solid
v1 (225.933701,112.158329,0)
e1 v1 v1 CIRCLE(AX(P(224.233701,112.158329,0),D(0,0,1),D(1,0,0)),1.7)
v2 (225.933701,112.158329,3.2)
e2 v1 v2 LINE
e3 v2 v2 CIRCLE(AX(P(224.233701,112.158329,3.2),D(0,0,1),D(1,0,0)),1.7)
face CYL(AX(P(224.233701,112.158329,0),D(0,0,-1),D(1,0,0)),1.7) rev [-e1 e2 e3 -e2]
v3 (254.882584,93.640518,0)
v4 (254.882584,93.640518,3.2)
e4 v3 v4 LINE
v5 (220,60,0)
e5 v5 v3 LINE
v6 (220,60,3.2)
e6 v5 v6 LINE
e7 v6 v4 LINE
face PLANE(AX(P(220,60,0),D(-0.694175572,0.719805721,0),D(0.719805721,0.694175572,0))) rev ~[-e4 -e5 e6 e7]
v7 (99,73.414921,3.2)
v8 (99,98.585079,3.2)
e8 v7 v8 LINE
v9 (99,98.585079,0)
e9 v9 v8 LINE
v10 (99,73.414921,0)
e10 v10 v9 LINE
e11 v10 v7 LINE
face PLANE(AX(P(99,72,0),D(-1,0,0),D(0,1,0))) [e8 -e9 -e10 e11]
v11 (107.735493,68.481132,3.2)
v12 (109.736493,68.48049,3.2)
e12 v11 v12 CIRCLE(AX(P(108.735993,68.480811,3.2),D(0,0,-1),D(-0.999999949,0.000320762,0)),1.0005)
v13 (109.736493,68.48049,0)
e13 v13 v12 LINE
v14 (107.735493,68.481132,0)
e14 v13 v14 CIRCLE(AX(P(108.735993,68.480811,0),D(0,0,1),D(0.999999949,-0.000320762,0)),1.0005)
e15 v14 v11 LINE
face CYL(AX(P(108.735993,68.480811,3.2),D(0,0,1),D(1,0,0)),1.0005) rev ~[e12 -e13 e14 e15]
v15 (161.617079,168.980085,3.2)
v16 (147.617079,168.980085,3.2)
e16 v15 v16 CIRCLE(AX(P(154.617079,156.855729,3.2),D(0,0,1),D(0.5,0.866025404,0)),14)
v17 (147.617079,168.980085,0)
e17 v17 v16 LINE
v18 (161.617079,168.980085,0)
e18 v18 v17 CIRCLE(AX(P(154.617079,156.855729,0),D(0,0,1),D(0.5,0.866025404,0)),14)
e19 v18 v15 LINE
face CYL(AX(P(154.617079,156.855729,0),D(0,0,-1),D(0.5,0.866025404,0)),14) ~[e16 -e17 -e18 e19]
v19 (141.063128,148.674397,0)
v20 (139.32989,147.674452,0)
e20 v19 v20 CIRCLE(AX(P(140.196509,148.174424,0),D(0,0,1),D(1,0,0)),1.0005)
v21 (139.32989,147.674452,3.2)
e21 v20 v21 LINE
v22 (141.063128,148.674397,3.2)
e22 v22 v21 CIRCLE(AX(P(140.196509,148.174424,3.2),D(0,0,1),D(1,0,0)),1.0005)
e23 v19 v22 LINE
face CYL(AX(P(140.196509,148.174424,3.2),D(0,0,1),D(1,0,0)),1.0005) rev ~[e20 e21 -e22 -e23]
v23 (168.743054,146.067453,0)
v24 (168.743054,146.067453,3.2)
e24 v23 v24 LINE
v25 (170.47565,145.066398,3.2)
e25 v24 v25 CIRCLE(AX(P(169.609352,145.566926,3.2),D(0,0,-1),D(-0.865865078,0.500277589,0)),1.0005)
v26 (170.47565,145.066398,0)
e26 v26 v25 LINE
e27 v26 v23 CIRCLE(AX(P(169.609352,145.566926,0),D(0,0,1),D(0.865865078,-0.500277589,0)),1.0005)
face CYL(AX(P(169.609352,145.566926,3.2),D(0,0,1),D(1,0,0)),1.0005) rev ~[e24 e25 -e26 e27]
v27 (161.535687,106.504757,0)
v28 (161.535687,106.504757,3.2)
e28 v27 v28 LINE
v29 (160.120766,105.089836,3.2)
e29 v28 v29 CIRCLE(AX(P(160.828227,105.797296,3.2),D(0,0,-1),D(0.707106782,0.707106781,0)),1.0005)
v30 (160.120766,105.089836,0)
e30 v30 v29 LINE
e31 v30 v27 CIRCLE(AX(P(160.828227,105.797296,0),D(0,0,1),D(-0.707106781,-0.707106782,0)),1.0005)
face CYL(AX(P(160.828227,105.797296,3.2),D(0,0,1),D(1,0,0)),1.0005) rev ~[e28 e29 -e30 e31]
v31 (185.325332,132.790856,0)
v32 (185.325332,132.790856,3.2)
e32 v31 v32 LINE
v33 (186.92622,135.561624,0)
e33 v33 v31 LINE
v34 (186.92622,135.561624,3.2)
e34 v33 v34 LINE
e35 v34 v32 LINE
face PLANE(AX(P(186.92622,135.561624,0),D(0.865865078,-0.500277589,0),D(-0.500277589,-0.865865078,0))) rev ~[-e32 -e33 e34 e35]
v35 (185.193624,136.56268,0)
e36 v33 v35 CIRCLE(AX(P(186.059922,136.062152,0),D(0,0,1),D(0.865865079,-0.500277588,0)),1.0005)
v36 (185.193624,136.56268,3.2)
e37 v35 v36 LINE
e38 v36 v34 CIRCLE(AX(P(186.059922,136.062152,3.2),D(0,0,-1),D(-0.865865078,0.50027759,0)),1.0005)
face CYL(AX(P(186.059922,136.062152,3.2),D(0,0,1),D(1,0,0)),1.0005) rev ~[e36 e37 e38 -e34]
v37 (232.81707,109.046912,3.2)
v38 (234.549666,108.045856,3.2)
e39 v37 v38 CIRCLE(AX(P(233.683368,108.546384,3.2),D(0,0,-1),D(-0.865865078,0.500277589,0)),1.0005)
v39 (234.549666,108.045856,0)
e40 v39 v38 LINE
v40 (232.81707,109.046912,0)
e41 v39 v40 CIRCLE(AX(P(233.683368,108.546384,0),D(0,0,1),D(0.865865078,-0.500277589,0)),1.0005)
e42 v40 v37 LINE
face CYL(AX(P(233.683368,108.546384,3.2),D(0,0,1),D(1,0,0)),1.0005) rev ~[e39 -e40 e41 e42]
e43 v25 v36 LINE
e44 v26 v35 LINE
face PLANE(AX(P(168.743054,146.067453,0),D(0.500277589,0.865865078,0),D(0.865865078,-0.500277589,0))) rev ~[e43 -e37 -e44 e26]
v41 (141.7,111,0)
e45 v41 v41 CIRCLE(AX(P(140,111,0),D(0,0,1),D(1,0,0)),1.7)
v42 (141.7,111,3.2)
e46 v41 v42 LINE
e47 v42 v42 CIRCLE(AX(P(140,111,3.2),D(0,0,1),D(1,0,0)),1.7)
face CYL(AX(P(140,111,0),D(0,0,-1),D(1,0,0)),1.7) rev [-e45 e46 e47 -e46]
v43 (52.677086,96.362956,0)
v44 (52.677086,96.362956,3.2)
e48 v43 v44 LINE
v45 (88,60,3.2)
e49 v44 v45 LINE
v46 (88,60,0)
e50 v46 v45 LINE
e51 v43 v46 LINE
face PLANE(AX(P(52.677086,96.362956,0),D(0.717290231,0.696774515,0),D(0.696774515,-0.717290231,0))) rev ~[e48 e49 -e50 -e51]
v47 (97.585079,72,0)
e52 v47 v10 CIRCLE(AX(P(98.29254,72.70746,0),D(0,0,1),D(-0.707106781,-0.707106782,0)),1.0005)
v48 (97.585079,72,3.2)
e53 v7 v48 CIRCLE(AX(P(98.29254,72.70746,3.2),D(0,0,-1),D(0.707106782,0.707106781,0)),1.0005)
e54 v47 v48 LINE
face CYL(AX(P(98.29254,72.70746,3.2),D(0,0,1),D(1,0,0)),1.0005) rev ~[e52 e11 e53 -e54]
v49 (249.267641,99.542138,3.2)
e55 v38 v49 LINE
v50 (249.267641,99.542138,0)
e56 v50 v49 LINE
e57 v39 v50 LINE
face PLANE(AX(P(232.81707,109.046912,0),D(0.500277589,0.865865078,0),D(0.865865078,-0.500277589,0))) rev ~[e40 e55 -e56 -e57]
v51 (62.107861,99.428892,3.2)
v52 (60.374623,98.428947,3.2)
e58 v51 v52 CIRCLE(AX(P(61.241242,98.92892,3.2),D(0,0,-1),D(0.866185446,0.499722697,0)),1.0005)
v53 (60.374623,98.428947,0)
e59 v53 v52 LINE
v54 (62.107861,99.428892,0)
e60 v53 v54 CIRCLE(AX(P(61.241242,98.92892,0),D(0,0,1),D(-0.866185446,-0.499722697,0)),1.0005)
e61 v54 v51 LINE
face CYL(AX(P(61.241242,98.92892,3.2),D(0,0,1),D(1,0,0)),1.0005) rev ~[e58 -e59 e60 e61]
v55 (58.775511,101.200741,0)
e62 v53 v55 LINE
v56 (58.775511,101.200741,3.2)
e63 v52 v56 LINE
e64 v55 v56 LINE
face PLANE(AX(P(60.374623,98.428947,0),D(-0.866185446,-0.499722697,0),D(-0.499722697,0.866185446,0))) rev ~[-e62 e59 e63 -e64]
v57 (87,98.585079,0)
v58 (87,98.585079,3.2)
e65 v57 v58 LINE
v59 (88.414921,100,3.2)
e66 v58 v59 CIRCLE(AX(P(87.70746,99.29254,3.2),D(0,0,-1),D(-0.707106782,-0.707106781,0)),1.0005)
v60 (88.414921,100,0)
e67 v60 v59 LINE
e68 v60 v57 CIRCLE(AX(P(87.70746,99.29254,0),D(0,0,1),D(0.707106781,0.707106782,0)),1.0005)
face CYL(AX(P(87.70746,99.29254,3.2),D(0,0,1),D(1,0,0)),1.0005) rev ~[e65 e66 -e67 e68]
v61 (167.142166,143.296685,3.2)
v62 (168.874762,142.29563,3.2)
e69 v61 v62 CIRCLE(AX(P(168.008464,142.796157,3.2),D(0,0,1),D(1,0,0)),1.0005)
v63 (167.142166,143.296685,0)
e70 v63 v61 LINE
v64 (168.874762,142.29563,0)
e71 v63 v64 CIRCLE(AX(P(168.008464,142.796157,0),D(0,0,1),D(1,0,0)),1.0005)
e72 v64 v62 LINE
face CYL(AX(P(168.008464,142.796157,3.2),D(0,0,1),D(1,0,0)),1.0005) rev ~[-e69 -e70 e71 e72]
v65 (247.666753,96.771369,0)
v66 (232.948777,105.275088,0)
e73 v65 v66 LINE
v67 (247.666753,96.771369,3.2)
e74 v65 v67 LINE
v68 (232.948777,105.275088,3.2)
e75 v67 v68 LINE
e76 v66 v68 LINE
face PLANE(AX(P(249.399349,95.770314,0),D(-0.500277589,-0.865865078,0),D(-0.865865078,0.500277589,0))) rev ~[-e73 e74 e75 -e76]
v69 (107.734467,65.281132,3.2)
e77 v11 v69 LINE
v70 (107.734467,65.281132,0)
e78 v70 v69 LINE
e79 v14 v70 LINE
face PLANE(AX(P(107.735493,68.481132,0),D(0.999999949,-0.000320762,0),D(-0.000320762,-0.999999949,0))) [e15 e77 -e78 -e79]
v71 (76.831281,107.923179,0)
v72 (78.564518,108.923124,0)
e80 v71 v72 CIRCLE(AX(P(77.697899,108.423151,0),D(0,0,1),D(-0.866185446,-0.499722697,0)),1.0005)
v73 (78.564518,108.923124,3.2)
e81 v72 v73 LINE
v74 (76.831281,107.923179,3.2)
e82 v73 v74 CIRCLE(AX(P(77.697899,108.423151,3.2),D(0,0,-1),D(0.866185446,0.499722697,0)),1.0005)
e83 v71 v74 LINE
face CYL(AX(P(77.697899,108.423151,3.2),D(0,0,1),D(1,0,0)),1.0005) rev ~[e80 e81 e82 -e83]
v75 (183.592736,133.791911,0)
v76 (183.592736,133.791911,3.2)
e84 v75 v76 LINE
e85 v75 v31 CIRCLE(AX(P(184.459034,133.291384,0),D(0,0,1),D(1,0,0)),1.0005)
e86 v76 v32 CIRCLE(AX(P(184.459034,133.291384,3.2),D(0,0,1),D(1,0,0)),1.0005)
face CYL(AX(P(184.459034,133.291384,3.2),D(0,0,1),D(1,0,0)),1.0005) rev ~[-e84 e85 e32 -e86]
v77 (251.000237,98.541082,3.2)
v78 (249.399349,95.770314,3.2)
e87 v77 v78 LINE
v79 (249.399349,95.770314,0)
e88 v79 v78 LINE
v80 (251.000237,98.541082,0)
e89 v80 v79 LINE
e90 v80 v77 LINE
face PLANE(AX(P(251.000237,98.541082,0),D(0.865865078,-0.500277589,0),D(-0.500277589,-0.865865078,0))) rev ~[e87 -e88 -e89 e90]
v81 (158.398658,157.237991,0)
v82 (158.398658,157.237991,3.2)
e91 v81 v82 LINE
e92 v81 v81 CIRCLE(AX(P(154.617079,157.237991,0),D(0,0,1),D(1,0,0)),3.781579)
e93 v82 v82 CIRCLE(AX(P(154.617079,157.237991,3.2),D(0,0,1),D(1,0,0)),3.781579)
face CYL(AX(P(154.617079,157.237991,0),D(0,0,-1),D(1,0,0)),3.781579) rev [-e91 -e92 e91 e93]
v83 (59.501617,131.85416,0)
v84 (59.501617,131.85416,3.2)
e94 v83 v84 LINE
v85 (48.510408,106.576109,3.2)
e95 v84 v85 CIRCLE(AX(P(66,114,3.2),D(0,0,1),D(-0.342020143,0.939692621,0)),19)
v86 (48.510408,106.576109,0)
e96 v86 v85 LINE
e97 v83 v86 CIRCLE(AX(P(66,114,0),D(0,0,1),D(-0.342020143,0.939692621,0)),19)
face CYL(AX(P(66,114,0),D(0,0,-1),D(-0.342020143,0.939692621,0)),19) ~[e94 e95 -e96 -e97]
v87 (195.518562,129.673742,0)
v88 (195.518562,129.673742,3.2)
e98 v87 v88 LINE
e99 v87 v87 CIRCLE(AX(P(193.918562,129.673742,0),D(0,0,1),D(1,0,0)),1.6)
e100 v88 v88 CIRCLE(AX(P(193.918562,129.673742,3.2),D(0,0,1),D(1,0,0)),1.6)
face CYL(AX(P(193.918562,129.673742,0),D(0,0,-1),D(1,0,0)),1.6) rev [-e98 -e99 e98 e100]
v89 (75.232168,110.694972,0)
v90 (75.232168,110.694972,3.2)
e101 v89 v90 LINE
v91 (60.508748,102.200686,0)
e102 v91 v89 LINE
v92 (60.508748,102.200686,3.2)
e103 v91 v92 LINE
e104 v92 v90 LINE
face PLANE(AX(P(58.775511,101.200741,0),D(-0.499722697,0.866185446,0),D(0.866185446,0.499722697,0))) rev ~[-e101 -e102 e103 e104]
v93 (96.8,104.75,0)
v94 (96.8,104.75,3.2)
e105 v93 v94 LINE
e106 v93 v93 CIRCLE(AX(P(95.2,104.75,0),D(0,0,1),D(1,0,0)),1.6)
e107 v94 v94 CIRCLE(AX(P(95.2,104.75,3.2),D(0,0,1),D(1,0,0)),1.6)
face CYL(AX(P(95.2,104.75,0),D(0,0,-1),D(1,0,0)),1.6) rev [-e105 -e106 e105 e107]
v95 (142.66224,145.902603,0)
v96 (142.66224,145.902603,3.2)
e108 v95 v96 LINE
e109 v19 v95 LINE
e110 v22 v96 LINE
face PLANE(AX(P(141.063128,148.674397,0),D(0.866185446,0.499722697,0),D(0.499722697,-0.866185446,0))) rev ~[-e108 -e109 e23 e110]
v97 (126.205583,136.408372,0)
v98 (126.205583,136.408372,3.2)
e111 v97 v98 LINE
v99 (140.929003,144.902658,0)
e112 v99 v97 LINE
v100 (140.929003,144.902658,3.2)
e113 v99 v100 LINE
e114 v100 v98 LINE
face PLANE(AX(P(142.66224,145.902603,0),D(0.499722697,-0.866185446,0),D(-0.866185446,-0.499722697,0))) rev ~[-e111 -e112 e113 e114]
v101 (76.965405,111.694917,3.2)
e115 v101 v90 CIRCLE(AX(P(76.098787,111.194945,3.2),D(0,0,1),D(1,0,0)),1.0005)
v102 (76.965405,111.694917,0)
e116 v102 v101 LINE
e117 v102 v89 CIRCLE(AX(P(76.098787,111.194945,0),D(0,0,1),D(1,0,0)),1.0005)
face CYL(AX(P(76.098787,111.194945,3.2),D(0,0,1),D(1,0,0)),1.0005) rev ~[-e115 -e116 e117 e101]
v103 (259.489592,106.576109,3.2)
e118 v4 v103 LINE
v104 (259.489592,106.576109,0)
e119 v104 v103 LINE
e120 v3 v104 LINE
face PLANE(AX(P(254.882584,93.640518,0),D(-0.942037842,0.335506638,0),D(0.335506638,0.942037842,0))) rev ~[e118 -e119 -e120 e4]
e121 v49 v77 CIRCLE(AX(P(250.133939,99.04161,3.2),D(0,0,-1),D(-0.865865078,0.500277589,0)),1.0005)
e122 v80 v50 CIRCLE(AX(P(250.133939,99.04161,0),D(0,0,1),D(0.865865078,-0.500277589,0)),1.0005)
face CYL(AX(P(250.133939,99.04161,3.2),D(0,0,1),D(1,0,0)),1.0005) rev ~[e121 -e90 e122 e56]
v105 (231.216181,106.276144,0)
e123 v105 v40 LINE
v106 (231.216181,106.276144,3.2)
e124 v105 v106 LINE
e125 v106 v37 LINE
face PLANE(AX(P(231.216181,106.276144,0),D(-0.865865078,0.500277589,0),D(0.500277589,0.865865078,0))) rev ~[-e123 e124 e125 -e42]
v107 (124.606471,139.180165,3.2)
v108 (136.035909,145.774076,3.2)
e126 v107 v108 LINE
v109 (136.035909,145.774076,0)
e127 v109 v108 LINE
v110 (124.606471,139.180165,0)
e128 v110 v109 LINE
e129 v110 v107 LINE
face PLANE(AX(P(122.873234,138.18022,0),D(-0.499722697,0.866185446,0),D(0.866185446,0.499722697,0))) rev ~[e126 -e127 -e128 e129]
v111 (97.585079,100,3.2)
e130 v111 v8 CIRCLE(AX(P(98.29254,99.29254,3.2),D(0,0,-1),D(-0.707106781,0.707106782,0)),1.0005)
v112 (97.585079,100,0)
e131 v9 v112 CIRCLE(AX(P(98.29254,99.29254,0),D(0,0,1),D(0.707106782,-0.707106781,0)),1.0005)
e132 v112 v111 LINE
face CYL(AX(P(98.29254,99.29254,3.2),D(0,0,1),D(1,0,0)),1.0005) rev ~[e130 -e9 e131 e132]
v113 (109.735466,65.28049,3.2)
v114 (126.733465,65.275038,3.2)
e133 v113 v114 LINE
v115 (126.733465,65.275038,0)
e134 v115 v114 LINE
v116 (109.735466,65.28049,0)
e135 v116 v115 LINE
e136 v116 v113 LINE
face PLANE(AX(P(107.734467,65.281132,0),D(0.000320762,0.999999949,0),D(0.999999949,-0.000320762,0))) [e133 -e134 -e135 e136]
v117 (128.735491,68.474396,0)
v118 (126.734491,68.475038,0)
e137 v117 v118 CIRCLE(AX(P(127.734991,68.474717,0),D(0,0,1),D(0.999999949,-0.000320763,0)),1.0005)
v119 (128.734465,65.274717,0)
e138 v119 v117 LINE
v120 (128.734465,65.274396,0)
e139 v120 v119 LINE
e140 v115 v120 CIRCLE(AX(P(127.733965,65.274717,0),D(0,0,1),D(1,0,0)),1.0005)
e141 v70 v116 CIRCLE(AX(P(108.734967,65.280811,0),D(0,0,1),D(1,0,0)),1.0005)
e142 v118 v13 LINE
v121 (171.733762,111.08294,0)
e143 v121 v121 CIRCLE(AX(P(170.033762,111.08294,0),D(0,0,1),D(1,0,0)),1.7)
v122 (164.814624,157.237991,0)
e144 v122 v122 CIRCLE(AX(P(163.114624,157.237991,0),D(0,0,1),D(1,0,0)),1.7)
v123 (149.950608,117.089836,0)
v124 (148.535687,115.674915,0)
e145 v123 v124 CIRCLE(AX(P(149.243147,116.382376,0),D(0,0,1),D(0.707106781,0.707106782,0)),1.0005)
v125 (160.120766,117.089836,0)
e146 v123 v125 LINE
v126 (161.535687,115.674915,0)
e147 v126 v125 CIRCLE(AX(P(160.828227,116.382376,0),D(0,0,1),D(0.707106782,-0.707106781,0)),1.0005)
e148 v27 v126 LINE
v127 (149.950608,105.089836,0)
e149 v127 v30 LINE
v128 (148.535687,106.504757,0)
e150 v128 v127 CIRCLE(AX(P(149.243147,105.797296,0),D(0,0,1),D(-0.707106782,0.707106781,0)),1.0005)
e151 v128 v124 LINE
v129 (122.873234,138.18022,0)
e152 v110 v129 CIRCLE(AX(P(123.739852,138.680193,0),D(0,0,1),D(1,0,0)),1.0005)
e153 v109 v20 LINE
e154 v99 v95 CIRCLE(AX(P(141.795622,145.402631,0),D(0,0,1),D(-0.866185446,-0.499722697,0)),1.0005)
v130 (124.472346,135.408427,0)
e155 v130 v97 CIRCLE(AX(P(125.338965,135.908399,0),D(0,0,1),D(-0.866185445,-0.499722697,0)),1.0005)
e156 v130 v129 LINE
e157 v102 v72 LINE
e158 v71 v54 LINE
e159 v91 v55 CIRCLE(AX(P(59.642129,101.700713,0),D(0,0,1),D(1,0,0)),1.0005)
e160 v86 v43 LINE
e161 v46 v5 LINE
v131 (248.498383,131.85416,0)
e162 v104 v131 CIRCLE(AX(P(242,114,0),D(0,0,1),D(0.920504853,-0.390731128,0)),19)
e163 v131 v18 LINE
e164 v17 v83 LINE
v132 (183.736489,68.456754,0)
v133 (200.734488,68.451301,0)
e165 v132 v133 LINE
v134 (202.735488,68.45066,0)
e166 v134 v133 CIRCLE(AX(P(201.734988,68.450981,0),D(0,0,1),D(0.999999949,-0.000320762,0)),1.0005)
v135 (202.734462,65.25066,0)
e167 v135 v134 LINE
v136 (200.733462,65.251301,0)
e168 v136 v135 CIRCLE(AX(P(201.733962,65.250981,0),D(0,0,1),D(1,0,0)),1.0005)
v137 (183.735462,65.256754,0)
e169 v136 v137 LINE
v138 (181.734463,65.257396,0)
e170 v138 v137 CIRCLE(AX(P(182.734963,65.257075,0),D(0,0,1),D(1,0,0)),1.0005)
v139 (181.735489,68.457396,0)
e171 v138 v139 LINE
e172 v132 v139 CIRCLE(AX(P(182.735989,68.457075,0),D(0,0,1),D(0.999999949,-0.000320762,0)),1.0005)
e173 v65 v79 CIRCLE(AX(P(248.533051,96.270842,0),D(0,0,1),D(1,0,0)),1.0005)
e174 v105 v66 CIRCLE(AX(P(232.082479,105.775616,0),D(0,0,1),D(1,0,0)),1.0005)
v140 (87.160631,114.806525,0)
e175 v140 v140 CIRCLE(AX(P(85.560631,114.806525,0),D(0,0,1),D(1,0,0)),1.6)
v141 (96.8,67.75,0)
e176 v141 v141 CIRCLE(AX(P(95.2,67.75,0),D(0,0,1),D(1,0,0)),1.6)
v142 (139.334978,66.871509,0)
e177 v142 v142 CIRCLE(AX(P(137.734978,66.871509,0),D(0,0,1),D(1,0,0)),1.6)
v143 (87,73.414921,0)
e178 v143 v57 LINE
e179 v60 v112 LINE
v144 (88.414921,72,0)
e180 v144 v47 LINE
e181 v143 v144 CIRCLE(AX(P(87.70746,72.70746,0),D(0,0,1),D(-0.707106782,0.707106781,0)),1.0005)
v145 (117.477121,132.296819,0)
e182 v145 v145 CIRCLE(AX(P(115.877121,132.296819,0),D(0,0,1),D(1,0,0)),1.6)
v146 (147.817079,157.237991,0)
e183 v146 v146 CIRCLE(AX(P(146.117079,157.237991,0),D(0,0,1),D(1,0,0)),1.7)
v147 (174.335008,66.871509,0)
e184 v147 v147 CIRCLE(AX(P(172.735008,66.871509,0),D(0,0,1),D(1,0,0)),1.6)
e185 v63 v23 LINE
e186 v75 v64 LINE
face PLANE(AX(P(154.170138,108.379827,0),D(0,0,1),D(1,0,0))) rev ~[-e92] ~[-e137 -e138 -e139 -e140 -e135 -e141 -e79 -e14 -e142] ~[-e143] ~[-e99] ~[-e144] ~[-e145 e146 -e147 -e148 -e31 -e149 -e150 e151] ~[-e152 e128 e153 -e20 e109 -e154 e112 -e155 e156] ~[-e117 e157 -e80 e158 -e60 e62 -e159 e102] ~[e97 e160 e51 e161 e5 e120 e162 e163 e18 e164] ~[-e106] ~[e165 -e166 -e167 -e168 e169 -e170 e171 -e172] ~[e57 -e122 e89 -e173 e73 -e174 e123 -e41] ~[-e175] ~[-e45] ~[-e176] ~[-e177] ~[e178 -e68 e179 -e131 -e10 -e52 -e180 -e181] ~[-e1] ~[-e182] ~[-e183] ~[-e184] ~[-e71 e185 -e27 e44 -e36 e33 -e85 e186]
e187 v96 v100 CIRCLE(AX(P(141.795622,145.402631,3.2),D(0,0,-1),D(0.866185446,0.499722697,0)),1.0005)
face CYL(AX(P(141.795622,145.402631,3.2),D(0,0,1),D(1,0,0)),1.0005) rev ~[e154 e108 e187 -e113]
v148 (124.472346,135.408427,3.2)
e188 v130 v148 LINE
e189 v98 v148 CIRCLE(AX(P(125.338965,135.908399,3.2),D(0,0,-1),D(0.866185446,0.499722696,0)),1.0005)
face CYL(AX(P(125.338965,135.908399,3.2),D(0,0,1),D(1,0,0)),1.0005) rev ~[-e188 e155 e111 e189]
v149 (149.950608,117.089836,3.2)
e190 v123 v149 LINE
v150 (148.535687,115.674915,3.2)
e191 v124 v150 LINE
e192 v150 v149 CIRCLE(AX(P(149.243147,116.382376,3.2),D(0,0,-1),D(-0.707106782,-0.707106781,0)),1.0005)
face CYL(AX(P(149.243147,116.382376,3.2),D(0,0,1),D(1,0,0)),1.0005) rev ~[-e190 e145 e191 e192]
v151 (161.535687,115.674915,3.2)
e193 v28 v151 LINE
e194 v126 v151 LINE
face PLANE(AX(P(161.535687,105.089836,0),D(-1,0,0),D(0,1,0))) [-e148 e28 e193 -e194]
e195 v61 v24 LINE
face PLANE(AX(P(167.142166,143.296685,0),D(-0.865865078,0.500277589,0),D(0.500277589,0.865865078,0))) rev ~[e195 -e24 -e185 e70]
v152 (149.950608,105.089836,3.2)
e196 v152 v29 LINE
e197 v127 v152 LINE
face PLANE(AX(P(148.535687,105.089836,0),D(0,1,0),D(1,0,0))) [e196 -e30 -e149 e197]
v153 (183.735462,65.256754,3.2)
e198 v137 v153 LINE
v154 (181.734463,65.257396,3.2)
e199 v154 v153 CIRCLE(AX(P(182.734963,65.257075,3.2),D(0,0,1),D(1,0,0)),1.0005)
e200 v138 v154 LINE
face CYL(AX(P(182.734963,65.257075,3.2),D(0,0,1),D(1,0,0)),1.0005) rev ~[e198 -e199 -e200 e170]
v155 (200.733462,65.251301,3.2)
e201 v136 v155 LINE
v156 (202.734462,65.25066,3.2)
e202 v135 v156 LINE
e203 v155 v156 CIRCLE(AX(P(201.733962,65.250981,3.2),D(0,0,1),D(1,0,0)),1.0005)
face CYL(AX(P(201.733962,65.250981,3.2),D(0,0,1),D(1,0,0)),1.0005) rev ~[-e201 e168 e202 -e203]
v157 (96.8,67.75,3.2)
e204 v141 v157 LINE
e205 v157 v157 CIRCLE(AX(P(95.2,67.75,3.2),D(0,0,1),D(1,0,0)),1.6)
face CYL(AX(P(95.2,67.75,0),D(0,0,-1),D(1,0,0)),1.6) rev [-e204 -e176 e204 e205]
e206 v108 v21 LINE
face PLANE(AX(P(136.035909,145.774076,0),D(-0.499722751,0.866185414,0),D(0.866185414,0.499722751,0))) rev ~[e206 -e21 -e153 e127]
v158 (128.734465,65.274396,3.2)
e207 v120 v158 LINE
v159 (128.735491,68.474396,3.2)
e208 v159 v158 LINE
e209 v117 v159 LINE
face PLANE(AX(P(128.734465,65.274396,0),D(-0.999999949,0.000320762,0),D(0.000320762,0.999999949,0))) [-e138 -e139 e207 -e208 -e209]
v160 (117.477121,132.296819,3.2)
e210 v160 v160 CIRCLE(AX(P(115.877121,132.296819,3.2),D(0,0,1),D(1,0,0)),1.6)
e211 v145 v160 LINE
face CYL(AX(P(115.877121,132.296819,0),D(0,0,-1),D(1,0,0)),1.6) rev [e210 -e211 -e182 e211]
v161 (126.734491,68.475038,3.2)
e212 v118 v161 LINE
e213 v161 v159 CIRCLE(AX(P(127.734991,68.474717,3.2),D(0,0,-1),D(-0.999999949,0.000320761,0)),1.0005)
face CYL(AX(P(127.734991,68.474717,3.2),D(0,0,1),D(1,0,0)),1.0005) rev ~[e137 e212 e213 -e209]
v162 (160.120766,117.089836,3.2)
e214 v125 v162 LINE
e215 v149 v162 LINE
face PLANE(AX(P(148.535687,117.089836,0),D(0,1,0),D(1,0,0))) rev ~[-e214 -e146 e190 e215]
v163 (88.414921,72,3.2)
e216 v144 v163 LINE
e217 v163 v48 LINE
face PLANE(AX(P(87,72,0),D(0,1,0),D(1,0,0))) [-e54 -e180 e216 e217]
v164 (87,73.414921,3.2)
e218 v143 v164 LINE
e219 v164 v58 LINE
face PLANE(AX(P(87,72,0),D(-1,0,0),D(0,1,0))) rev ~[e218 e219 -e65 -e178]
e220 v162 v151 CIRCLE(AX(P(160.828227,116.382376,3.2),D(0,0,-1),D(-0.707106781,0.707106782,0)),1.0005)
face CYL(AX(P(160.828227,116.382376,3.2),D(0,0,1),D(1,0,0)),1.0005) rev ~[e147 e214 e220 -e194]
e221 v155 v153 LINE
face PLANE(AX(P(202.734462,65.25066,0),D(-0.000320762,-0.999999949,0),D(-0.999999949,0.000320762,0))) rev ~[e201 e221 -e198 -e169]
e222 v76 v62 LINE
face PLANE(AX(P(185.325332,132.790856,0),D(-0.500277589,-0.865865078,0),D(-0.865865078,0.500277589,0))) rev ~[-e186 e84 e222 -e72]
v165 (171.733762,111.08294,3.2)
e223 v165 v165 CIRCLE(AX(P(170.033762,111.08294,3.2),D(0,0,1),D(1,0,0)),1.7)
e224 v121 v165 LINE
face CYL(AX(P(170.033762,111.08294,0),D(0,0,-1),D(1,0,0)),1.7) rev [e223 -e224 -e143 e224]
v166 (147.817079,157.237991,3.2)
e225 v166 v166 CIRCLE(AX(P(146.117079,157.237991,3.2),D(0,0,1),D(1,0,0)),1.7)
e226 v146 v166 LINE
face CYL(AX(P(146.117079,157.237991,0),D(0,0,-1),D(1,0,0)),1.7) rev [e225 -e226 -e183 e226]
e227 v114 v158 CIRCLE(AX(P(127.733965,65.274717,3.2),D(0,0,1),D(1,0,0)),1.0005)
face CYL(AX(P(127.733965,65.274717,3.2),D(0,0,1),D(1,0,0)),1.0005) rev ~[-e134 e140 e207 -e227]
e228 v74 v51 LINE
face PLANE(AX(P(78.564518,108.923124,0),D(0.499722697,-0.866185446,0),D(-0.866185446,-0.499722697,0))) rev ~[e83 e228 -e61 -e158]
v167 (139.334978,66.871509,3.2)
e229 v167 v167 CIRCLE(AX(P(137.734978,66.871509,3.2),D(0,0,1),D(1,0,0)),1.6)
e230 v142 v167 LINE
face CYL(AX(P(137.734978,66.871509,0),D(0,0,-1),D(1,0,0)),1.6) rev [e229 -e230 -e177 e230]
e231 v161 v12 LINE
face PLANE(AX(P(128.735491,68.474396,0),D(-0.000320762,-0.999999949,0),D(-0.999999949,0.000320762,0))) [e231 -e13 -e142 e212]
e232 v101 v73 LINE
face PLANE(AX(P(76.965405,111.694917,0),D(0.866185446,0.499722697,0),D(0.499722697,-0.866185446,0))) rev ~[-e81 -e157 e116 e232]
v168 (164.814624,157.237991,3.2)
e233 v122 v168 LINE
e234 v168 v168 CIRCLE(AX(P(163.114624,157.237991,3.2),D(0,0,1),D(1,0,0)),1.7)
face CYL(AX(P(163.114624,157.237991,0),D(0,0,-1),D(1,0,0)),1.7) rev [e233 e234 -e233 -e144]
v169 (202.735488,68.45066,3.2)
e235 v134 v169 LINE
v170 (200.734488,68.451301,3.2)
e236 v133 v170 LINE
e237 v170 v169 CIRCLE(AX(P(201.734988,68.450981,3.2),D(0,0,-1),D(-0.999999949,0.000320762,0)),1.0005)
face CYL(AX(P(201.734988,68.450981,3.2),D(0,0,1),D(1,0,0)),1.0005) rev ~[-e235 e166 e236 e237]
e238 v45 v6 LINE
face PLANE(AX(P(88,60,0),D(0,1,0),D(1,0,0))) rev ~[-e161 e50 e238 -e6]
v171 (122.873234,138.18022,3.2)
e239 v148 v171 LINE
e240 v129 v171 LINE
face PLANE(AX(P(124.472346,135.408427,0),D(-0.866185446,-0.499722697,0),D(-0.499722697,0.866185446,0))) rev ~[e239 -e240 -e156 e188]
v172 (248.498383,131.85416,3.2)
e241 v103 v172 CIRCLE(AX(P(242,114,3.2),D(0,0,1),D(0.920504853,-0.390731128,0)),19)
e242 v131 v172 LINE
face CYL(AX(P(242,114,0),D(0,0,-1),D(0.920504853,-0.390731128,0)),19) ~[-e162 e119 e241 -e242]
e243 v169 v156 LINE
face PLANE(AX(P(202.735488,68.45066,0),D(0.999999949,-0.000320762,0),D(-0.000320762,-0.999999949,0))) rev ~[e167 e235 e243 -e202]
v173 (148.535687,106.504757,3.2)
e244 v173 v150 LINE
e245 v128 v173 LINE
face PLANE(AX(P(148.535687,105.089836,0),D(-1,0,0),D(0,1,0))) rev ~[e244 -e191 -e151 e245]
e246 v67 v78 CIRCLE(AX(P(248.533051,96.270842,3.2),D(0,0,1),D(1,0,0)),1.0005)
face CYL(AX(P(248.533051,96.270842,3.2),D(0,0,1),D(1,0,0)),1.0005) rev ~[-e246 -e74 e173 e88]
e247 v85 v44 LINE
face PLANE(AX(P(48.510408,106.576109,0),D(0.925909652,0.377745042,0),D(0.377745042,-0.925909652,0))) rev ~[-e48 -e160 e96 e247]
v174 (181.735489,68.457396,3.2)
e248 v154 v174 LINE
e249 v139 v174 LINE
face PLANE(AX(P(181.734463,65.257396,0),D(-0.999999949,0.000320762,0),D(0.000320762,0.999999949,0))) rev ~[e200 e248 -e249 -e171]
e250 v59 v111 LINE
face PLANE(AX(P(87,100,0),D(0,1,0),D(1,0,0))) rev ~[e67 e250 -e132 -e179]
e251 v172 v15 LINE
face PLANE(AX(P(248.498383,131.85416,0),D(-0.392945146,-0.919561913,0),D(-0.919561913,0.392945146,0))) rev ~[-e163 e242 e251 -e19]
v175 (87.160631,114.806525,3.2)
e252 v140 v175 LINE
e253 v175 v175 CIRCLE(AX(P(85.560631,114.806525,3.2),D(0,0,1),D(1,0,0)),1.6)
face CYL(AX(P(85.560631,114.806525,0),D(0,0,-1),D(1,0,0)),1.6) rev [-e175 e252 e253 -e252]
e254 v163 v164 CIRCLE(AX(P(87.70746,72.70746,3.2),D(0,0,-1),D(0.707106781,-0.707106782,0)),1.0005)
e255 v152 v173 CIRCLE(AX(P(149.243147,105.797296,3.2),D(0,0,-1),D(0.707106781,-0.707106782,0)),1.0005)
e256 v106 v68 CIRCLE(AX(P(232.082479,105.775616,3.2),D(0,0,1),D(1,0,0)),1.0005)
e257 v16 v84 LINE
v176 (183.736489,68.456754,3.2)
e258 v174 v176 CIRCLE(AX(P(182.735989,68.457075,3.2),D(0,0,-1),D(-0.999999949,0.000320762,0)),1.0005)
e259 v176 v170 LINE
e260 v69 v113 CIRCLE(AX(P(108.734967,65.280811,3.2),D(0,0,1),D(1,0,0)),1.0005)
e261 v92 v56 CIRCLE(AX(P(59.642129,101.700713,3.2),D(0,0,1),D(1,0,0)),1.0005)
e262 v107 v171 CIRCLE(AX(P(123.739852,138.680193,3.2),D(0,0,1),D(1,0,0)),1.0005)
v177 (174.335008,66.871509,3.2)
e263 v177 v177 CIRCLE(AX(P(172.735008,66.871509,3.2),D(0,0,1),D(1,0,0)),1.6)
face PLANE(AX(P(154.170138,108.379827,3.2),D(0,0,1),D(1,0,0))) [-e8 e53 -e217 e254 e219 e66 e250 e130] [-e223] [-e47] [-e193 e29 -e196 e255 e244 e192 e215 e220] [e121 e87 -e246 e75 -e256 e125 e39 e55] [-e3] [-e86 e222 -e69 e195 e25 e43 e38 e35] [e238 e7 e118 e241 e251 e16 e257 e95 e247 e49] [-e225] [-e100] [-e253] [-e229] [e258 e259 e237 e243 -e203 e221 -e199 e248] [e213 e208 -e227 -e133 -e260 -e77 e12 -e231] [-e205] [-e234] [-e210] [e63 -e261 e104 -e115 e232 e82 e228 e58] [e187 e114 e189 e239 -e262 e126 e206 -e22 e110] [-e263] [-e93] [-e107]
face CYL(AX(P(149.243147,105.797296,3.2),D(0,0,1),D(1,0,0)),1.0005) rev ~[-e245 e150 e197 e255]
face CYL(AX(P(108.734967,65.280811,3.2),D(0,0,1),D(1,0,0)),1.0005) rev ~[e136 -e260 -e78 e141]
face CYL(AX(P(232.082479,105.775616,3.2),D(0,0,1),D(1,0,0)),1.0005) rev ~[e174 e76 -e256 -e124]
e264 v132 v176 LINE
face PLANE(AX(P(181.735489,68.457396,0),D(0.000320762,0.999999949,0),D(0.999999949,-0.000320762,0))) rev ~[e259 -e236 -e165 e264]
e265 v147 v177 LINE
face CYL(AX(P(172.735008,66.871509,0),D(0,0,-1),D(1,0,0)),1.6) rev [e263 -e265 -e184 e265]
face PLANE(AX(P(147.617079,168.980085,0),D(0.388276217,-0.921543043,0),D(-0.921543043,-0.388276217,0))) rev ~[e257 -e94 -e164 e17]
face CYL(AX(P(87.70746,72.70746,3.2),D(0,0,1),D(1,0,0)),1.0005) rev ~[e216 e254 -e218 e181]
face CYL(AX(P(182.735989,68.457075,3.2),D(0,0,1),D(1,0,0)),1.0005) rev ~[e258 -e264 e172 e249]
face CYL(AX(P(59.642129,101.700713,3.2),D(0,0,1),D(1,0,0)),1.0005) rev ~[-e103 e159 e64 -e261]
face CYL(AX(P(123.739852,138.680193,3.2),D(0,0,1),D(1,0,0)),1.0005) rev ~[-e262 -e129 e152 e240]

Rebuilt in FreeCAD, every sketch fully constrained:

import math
import FreeCAD as App
import Part
import Sketcher

V = App.Vector


def add_polygon(sketch, points):
    """Adds a closed chain of lines whose ends are joined by coincident constraints."""
    first, n = sketch.GeometryCount, len(points)
    for a, b in zip(points, points[1:] + points[:1]):
        sketch.addGeometry(Part.LineSegment(App.Vector(*a, 0), App.Vector(*b, 0)), False)
    for i in range(n):
        sketch.addConstraint(Sketcher.Constraint("Coincident", first + i, 2, first + (i + 1) % n, 1))

doc = App.newDocument("Part")
params = doc.addObject("Spreadsheet::Sheet", "Params")
for row, (alias, value) in enumerate([
    ("sketch1_radius", "19 mm"),
    ("sketch1_radius2", "14 mm"),
    ("sketch1_diameter", "3.2 mm"),
    ("sketch1_diameter2", "3.4 mm"),
    ("sketch1_width", "132 mm"),
    ("pad1_length", "3.2 mm"),
], start=1):
    params.set(f"A{row}", alias)
    params.set(f"B{row}", "=" + value)
    params.setAlias(f"B{row}", alias)

body = doc.addObject("PartDesign::Body", "Body")

# Sketch on XY plane
sketch1 = body.newObject("Sketcher::SketchObject", "Sketch")
sketch1.AttachmentSupport = (doc.getObject("XY_Plane"), [""])
sketch1.MapMode = "FlatFace"
sketch1.addGeometry(Part.LineSegment(V(88, 60, 0), V(220, 60, 0)), False)  # 0
sketch1.addGeometry(Part.LineSegment(V(220, 60, 0), V(254.9, 93.6, 0)), False)  # 1
sketch1.addGeometry(Part.LineSegment(V(254.9, 93.6, 0), V(259.5, 106.6, 0)), False)  # 2
sketch1.addGeometry(Part.ArcOfCircle(Part.Circle(V(242, 114, 0), V(0, 0, 1), 19), math.radians(-23), math.radians(70)), False)  # 3
sketch1.addGeometry(Part.LineSegment(V(248.5, 131.9, 0), V(161.6, 169, 0)), False)  # 4
sketch1.addGeometry(Part.ArcOfCircle(Part.Circle(V(154.6, 156.9, 0), V(0, 0, 1), 14), math.radians(60), math.radians(120)), False)  # 5
sketch1.addGeometry(Part.LineSegment(V(147.6, 169, 0), V(59.5, 131.9, 0)), False)  # 6
sketch1.addGeometry(Part.ArcOfCircle(Part.Circle(V(66, 114, 0), V(0, 0, 1), 19), math.radians(110), math.radians(203)), False)  # 7
sketch1.addGeometry(Part.LineSegment(V(48.5, 106.6, 0), V(52.7, 96.4, 0)), False)  # 8
sketch1.addGeometry(Part.LineSegment(V(52.7, 96.4, 0), V(88, 60, 0)), False)  # 9
sketch1.addGeometry(Part.Circle(V(95.2, 67.8, 0), V(0, 0, 1), 1.6), False)  # 10
add_polygon(sketch1, [(99, 72), (87, 72), (87, 100), (99, 100)])  # lines 11-14
add_polygon(sketch1, [(128.7, 68.5), (128.7, 65.3), (107.7, 65.3), (107.7, 68.5)])  # lines 15-18
sketch1.addGeometry(Part.Circle(V(137.7, 66.9, 0), V(0, 0, 1), 1.6), False)  # 19
add_polygon(sketch1, [(78.6, 108.9), (60.4, 98.4), (58.8, 101.2), (77, 111.7)])  # lines 20-23
sketch1.addGeometry(Part.Circle(V(95.2, 104.8, 0), V(0, 0, 1), 1.6), False)  # 24
sketch1.addGeometry(Part.Circle(V(140, 111, 0), V(0, 0, 1), 1.7), False)  # 25
sketch1.addGeometry(Part.Circle(V(172.7, 66.9, 0), V(0, 0, 1), 1.6), False)  # 26
add_polygon(sketch1, [(202.7, 65.3), (181.7, 65.3), (181.7, 68.5), (202.7, 68.5)])  # lines 27-30
add_polygon(sketch1, [(161.5, 105.1), (148.5, 105.1), (148.5, 117.1), (161.5, 117.1)])  # lines 31-34
sketch1.addGeometry(Part.Circle(V(170, 111.1, 0), V(0, 0, 1), 1.7), False)  # 35
sketch1.addGeometry(Part.Circle(V(224.2, 112.2, 0), V(0, 0, 1), 1.7), False)  # 36
add_polygon(sketch1, [(251, 98.5), (249.4, 95.8), (231.2, 106.3), (232.8, 109)])  # lines 37-40
sketch1.addGeometry(Part.Circle(V(85.6, 114.8, 0), V(0, 0, 1), 1.6), False)  # 41
sketch1.addGeometry(Part.Circle(V(115.9, 132.3, 0), V(0, 0, 1), 1.6), False)  # 42
add_polygon(sketch1, [(141.1, 148.7), (142.7, 145.9), (124.5, 135.4), (122.9, 138.2), (136, 145.8)])  # lines 43-47
sketch1.addGeometry(Part.Circle(V(146.1, 157.2, 0), V(0, 0, 1), 1.7), False)  # 48
sketch1.addGeometry(Part.Circle(V(154.6, 157.2, 0), V(0, 0, 1), 3.8), False)  # 49
sketch1.addGeometry(Part.Circle(V(193.9, 129.7, 0), V(0, 0, 1), 1.6), False)  # 50
add_polygon(sketch1, [(185.3, 132.8), (167.1, 143.3), (168.7, 146.1), (186.9, 135.6)])  # lines 51-54
sketch1.addGeometry(Part.Circle(V(163.1, 157.2, 0), V(0, 0, 1), 1.7), False)  # 55
sketch1.addConstraint(Sketcher.Constraint("Coincident", 0, 2, 1, 1))
sketch1.addConstraint(Sketcher.Constraint("Coincident", 1, 2, 2, 1))
sketch1.addConstraint(Sketcher.Constraint("Coincident", 2, 2, 3, 1))
sketch1.addConstraint(Sketcher.Constraint("Coincident", 3, 2, 4, 1))
sketch1.addConstraint(Sketcher.Constraint("Coincident", 4, 2, 5, 1))
sketch1.addConstraint(Sketcher.Constraint("Coincident", 5, 2, 6, 1))
sketch1.addConstraint(Sketcher.Constraint("Coincident", 6, 2, 7, 1))
sketch1.addConstraint(Sketcher.Constraint("Coincident", 7, 2, 8, 1))
sketch1.addConstraint(Sketcher.Constraint("Coincident", 8, 2, 9, 1))
sketch1.addConstraint(Sketcher.Constraint("Coincident", 9, 2, 0, 1))
sketch1.addConstraint(Sketcher.Constraint("Horizontal", 0))
sketch1.addConstraint(Sketcher.Constraint("Horizontal", 11))
sketch1.addConstraint(Sketcher.Constraint("Vertical", 12))
sketch1.addConstraint(Sketcher.Constraint("Horizontal", 13))
sketch1.addConstraint(Sketcher.Constraint("Vertical", 14))
sketch1.addConstraint(Sketcher.Constraint("Horizontal", 31))
sketch1.addConstraint(Sketcher.Constraint("Vertical", 32))
sketch1.addConstraint(Sketcher.Constraint("Horizontal", 33))
sketch1.addConstraint(Sketcher.Constraint("Vertical", 34))
sketch1.addConstraint(Sketcher.Constraint("Equal", 3, 7))
sketch1.addConstraint(Sketcher.Constraint("Equal", 10, 19))
sketch1.addConstraint(Sketcher.Constraint("Equal", 19, 24))
sketch1.addConstraint(Sketcher.Constraint("Equal", 24, 26))
sketch1.addConstraint(Sketcher.Constraint("Equal", 25, 35))
sketch1.addConstraint(Sketcher.Constraint("Equal", 35, 36))
sketch1.addConstraint(Sketcher.Constraint("Equal", 26, 41))
sketch1.addConstraint(Sketcher.Constraint("Equal", 41, 42))
sketch1.addConstraint(Sketcher.Constraint("Equal", 36, 48))
sketch1.addConstraint(Sketcher.Constraint("Equal", 42, 50))
sketch1.addConstraint(Sketcher.Constraint("Equal", 48, 55))
sketch1.addConstraint(Sketcher.Constraint("Perpendicular", 15, 16))
sketch1.addConstraint(Sketcher.Constraint("Perpendicular", 16, 17))
sketch1.addConstraint(Sketcher.Constraint("Perpendicular", 17, 18))
sketch1.addConstraint(Sketcher.Constraint("Perpendicular", 20, 21))
sketch1.addConstraint(Sketcher.Constraint("Perpendicular", 21, 22))
sketch1.addConstraint(Sketcher.Constraint("Perpendicular", 22, 23))
sketch1.addConstraint(Sketcher.Constraint("Parallel", 18, 27))
sketch1.addConstraint(Sketcher.Constraint("Perpendicular", 27, 28))
sketch1.addConstraint(Sketcher.Constraint("Perpendicular", 28, 29))
sketch1.addConstraint(Sketcher.Constraint("Perpendicular", 29, 30))
sketch1.addConstraint(Sketcher.Constraint("Perpendicular", 37, 38))
sketch1.addConstraint(Sketcher.Constraint("Perpendicular", 38, 39))
sketch1.addConstraint(Sketcher.Constraint("Perpendicular", 39, 40))
sketch1.addConstraint(Sketcher.Constraint("Parallel", 23, 43))
sketch1.addConstraint(Sketcher.Constraint("Perpendicular", 43, 44))
sketch1.addConstraint(Sketcher.Constraint("Perpendicular", 44, 45))
sketch1.addConstraint(Sketcher.Constraint("Perpendicular", 45, 46))
sketch1.addConstraint(Sketcher.Constraint("Parallel", 46, 47))
sketch1.addConstraint(Sketcher.Constraint("Parallel", 40, 51))
sketch1.addConstraint(Sketcher.Constraint("Perpendicular", 51, 52))
sketch1.addConstraint(Sketcher.Constraint("Perpendicular", 52, 53))
sketch1.addConstraint(Sketcher.Constraint("Perpendicular", 53, 54))
sketch1.addConstraint(Sketcher.Constraint("Horizontal", 3, 3, 7, 3))
sketch1.addConstraint(Sketcher.Constraint("Horizontal", 19, 3, 26, 3))
sketch1.addConstraint(Sketcher.Constraint("Horizontal", 48, 3, 49, 3))
sketch1.addConstraint(Sketcher.Constraint("Horizontal", 49, 3, 55, 3))
sketch1.addConstraint(Sketcher.Constraint("Horizontal", 4, 2, 5, 2))
sketch1.addConstraint(Sketcher.Constraint("Horizontal", 3, 2, 6, 2))
sketch1.addConstraint(Sketcher.Constraint("Horizontal", 2, 2, 7, 2))
sketch1.addConstraint(Sketcher.Constraint("Vertical", 10, 3, 24, 3))
sketch1.addConstraint(Sketcher.Constraint("Vertical", 5, 3, 49, 3))
sketch1.addConstraint(Sketcher.Constraint("Equal", 13, 32))
sketch1.addConstraint(Sketcher.Constraint("Equal", 18, 20))
sketch1.addConstraint(Sketcher.Constraint("Equal", 17, 21))
sketch1.addConstraint(Sketcher.Constraint("Equal", 22, 27))
sketch1.addConstraint(Sketcher.Constraint("Equal", 23, 28))
sketch1.addConstraint(Sketcher.Constraint("Equal", 30, 37))
sketch1.addConstraint(Sketcher.Constraint("Equal", 29, 38))
sketch1.addConstraint(Sketcher.Constraint("Equal", 39, 43))
sketch1.addConstraint(Sketcher.Constraint("Equal", 40, 44))
sketch1.addConstraint(Sketcher.Constraint("Equal", 44, 51))
sketch1.addConstraint(Sketcher.Constraint("Equal", 45, 52))
sketch1.addConstraint(Sketcher.Constraint("Radius", 3, 19.0))
sketch1.addConstraint(Sketcher.Constraint("Radius", 5, 14.0))
sketch1.addConstraint(Sketcher.Constraint("Diameter", 10, 3.2))
sketch1.addConstraint(Sketcher.Constraint("Diameter", 25, 3.4))
sketch1.addConstraint(Sketcher.Constraint("DistanceX", 0, 1, 0, 2, 132.0))
sketch1.addConstraint(Sketcher.Constraint("DistanceX", 11, 2, 11, 1, 12.0))
sketch1.addConstraint(Sketcher.Constraint("DistanceX", 31, 2, 31, 1, 13.0))
sketch1.addConstraint(Sketcher.Constraint("DistanceY", 12, 1, 12, 2, 28.0))
sketch1.addConstraint(Sketcher.Constraint("Distance", 16, 20.999999))
sketch1.addConstraint(Sketcher.Constraint("DistanceX", -1, 1, 3, 3, 242.0))
sketch1.addConstraint(Sketcher.Constraint("DistanceY", -1, 1, 3, 3, 114.0))
sketch1.addConstraint(Sketcher.Constraint("DistanceX", -1, 1, 7, 3, 66.0))
sketch1.addConstraint(Sketcher.Constraint("DistanceX", -1, 1, 25, 3, 140.0))
sketch1.addConstraint(Sketcher.Constraint("DistanceY", -1, 1, 25, 3, 111.0))
sketch1.addConstraint(Sketcher.Constraint("DistanceX", -1, 1, 0, 2, 220.0))
sketch1.addConstraint(Sketcher.Constraint("DistanceY", -1, 1, 0, 2, 60.0))
sketch1.addConstraint(Sketcher.Constraint("DistanceX", -1, 1, 11, 2, 87.0))
sketch1.addConstraint(Sketcher.Constraint("DistanceY", -1, 1, 11, 2, 72.0))
sketch1.addConstraint(Sketcher.Constraint("DistanceY", 10, 3, 24, 3, 37.0))
sketch1.addConstraint(Sketcher.Constraint("DistanceX", 49, 3, 4, 2, 7.0))
sketch1.addConstraint(Sketcher.Constraint("DistanceX", 15, 2, 27, 2, 52.999998))
sketch1.addConstraint(Sketcher.Constraint("Distance", 15, 3.2))
sketch1.addConstraint(Sketcher.Constraint("DistanceX", -1, 1, 10, 3, 95.2))
sketch1.addConstraint(Sketcher.Constraint("DistanceX", 48, 3, 5, 3, 8.5))
sketch1.addConstraint(Sketcher.Constraint("Diameter", 49, 7.563159))
sketch1.addConstraint(Sketcher.Constraint("DistanceY", -1, 1, 10, 3, 67.75))
sketch1.addConstraint(Sketcher.Constraint("DistanceY", 27, 2, 15, 2, 0.017))
sketch1.addConstraint(Sketcher.Constraint("Distance", 8, 11.030399))
sketch1.addConstraint(Sketcher.Constraint("Distance", 9, 50.694899))
sketch1.addConstraint(Sketcher.Constraint("DistanceX", -1, 1, 36, 3, 224.233701))
sketch1.addConstraint(Sketcher.Constraint("DistanceX", 19, 3, 5, 3, 16.882101))
sketch1.addConstraint(Sketcher.Constraint("DistanceY", 36, 3, 5, 3, 44.697401))
sketch1.addConstraint(Sketcher.Constraint("DistanceX", 35, 3, 50, 3, 23.8848))
sketch1.addConstraint(Sketcher.Constraint("DistanceY", 35, 3, 50, 3, 18.590802))
sketch1.addConstraint(Sketcher.Constraint("DistanceX", 3, 2, 1, 2, 6.384201))
sketch1.addConstraint(Sketcher.Constraint("DistanceY", 23, 2, 41, 3, 5.883401))
sketch1.addConstraint(Sketcher.Constraint("DistanceX", 35, 3, 27, 2, 11.700701))
sketch1.addConstraint(Sketcher.Constraint("DistanceY", 42, 3, 45, 2, 5.883401))
sketch1.addConstraint(Sketcher.Constraint("Distance", 1, 48.461109))
sketch1.addConstraint(Sketcher.Constraint("Distance", 4, 94.48119))
sketch1.addConstraint(Sketcher.Constraint("Distance", 46, 15.19614))
sketch1.addConstraint(Sketcher.Constraint("DistanceX", -1, 1, 5, 3, 154.617079))
sketch1.addConstraint(Sketcher.Constraint("DistanceY", -1, 1, 5, 3, 156.855729))
sketch1.addConstraint(Sketcher.Constraint("DistanceY", -1, 1, 19, 3, 66.871509))
sketch1.addConstraint(Sketcher.Constraint("DistanceX", -1, 1, 26, 3, 172.735008))
sketch1.addConstraint(Sketcher.Constraint("DistanceX", -1, 1, 35, 3, 170.033762))
sketch1.addConstraint(Sketcher.Constraint("DistanceY", -1, 1, 35, 3, 111.08294))
sketch1.addConstraint(Sketcher.Constraint("DistanceX", -1, 1, 41, 3, 85.560631))
sketch1.addConstraint(Sketcher.Constraint("DistanceX", -1, 1, 42, 3, 115.877121))
sketch1.addConstraint(Sketcher.Constraint("DistanceY", -1, 1, 42, 3, 132.296819))
sketch1.addConstraint(Sketcher.Constraint("DistanceY", -1, 1, 48, 3, 157.237991))
sketch1.addConstraint(Sketcher.Constraint("DistanceY", -1, 1, 2, 2, 106.576109))
sketch1.addConstraint(Sketcher.Constraint("DistanceY", -1, 1, 16, 2, 65.281132))
sketch1.addConstraint(Sketcher.Constraint("DistanceX", -1, 1, 18, 2, 128.735491))
sketch1.addConstraint(Sketcher.Constraint("DistanceX", -1, 1, 21, 2, 58.775511))
sketch1.addConstraint(Sketcher.Constraint("DistanceY", -1, 1, 21, 2, 101.200741))
sketch1.addConstraint(Sketcher.Constraint("DistanceX", -1, 1, 23, 2, 78.564518))
sketch1.addConstraint(Sketcher.Constraint("DistanceX", -1, 1, 37, 2, 249.399349))
sketch1.addConstraint(Sketcher.Constraint("DistanceX", -1, 1, 38, 2, 231.216181))
sketch1.addConstraint(Sketcher.Constraint("DistanceY", -1, 1, 39, 2, 109.046912))
sketch1.addConstraint(Sketcher.Constraint("DistanceX", -1, 1, 43, 2, 142.66224))
sketch1.addConstraint(Sketcher.Constraint("DistanceX", -1, 1, 53, 2, 186.92622))
sketch1.addConstraint(Sketcher.Constraint("DistanceX", 19, 3, 31, 2, 10.800709))
sketch1.addConstraint(Sketcher.Constraint("DistanceY", 18, 2, 31, 2, 36.61544))
sketch1.addConstraint(Sketcher.Constraint("DistanceX", 55, 3, 51, 2, 4.027542))
sketch1.addConstraint(Sketcher.Constraint("DistanceY", 51, 2, 43, 2, 2.605918))
sketch1.setExpression("Constraints[105]", "Params.sketch1_radius")
sketch1.setExpression("Constraints[106]", "Params.sketch1_radius2")
sketch1.setExpression("Constraints[107]", "Params.sketch1_diameter")
sketch1.setExpression("Constraints[108]", "Params.sketch1_diameter2")
sketch1.setExpression("Constraints[109]", "Params.sketch1_width")
pad1 = body.newObject("PartDesign::Pad", "Pad")
pad1.Profile = sketch1
pad1.setExpression("Length", "Params.pad1_length")

# Sketch on XY plane
sketch2 = body.newObject("Sketcher::SketchObject", "Sketch001")
sketch2.AttachmentSupport = (doc.getObject("XY_Plane"), [""])
sketch2.MapMode = "FlatFace"
sketch2.AttachmentOffset = App.Placement(V(0, 0, 3.2), App.Rotation())
sketch2.addGeometry(Part.Circle(V(61.2, 98.9, 0), V(0, 0, 1), 1), False)
sketch2.addGeometry(Part.Circle(V(59.6, 101.7, 0), V(0, 0, 1), 1), False)
sketch2.addGeometry(Part.Circle(V(76.1, 111.2, 0), V(0, 0, 1), 1), False)
sketch2.addGeometry(Part.Circle(V(77.7, 108.4, 0), V(0, 0, 1), 1), False)
sketch2.addGeometry(Part.Circle(V(87.7, 99.3, 0), V(0, 0, 1), 1), False)
sketch2.addGeometry(Part.Circle(V(98.3, 99.3, 0), V(0, 0, 1), 1), False)
sketch2.addGeometry(Part.Circle(V(87.7, 72.7, 0), V(0, 0, 1), 1), False)
sketch2.addGeometry(Part.Circle(V(98.3, 72.7, 0), V(0, 0, 1), 1), False)
sketch2.addGeometry(Part.Circle(V(108.7, 68.5, 0), V(0, 0, 1), 1), False)
sketch2.addGeometry(Part.Circle(V(108.7, 65.3, 0), V(0, 0, 1), 1), False)
sketch2.addGeometry(Part.Circle(V(127.7, 65.3, 0), V(0, 0, 1), 1), False)
sketch2.addGeometry(Part.Circle(V(127.7, 68.5, 0), V(0, 0, 1), 1), False)
sketch2.addGeometry(Part.Circle(V(182.7, 65.3, 0), V(0, 0, 1), 1), False)
sketch2.addGeometry(Part.Circle(V(182.7, 68.5, 0), V(0, 0, 1), 1), False)
sketch2.addGeometry(Part.Circle(V(201.7, 68.5, 0), V(0, 0, 1), 1), False)
sketch2.addGeometry(Part.Circle(V(201.7, 65.3, 0), V(0, 0, 1), 1), False)
sketch2.addGeometry(Part.Circle(V(232.1, 105.8, 0), V(0, 0, 1), 1), False)
sketch2.addGeometry(Part.Circle(V(233.7, 108.5, 0), V(0, 0, 1), 1), False)
sketch2.addGeometry(Part.Circle(V(250.1, 99, 0), V(0, 0, 1), 1), False)
sketch2.addGeometry(Part.Circle(V(248.5, 96.3, 0), V(0, 0, 1), 1), False)
sketch2.addGeometry(Part.Circle(V(160.8, 105.8, 0), V(0, 0, 1), 1), False)
sketch2.addGeometry(Part.Circle(V(160.8, 116.4, 0), V(0, 0, 1), 1), False)
sketch2.addGeometry(Part.Circle(V(149.2, 105.8, 0), V(0, 0, 1), 1), False)
sketch2.addGeometry(Part.Circle(V(149.2, 116.4, 0), V(0, 0, 1), 1), False)
sketch2.addGeometry(Part.Circle(V(168, 142.8, 0), V(0, 0, 1), 1), False)
sketch2.addGeometry(Part.Circle(V(169.6, 145.6, 0), V(0, 0, 1), 1), False)
sketch2.addGeometry(Part.Circle(V(184.5, 133.3, 0), V(0, 0, 1), 1), False)
sketch2.addGeometry(Part.Circle(V(186.1, 136.1, 0), V(0, 0, 1), 1), False)
sketch2.addGeometry(Part.Circle(V(141.8, 145.4, 0), V(0, 0, 1), 1), False)
sketch2.addGeometry(Part.Circle(V(140.2, 148.2, 0), V(0, 0, 1), 1), False)
sketch2.addGeometry(Part.Circle(V(123.7, 138.7, 0), V(0, 0, 1), 1), False)
sketch2.addGeometry(Part.Circle(V(125.3, 135.9, 0), V(0, 0, 1), 1), False)
sketch2.addConstraint(Sketcher.Constraint("Equal", 0, 1))
sketch2.addConstraint(Sketcher.Constraint("Equal", 1, 2))
sketch2.addConstraint(Sketcher.Constraint("Equal", 2, 3))
sketch2.addConstraint(Sketcher.Constraint("Equal", 3, 4))
sketch2.addConstraint(Sketcher.Constraint("Equal", 4, 5))
sketch2.addConstraint(Sketcher.Constraint("Equal", 5, 6))
sketch2.addConstraint(Sketcher.Constraint("Equal", 6, 7))
sketch2.addConstraint(Sketcher.Constraint("Equal", 7, 8))
sketch2.addConstraint(Sketcher.Constraint("Equal", 8, 9))
sketch2.addConstraint(Sketcher.Constraint("Equal", 9, 10))
sketch2.addConstraint(Sketcher.Constraint("Equal", 10, 11))
sketch2.addConstraint(Sketcher.Constraint("Equal", 11, 12))
sketch2.addConstraint(Sketcher.Constraint("Equal", 12, 13))
sketch2.addConstraint(Sketcher.Constraint("Equal", 13, 14))
sketch2.addConstraint(Sketcher.Constraint("Equal", 14, 15))
sketch2.addConstraint(Sketcher.Constraint("Equal", 15, 16))
sketch2.addConstraint(Sketcher.Constraint("Equal", 16, 17))
sketch2.addConstraint(Sketcher.Constraint("Equal", 17, 18))
sketch2.addConstraint(Sketcher.Constraint("Equal", 18, 19))
sketch2.addConstraint(Sketcher.Constraint("Equal", 19, 20))
sketch2.addConstraint(Sketcher.Constraint("Equal", 20, 21))
sketch2.addConstraint(Sketcher.Constraint("Equal", 21, 22))
sketch2.addConstraint(Sketcher.Constraint("Equal", 22, 23))
sketch2.addConstraint(Sketcher.Constraint("Equal", 23, 24))
sketch2.addConstraint(Sketcher.Constraint("Equal", 24, 25))
sketch2.addConstraint(Sketcher.Constraint("Equal", 25, 26))
sketch2.addConstraint(Sketcher.Constraint("Equal", 26, 27))
sketch2.addConstraint(Sketcher.Constraint("Equal", 27, 28))
sketch2.addConstraint(Sketcher.Constraint("Equal", 28, 29))
sketch2.addConstraint(Sketcher.Constraint("Equal", 29, 30))
sketch2.addConstraint(Sketcher.Constraint("Equal", 30, 31))
sketch2.addConstraint(Sketcher.Constraint("Horizontal", 4, 3, 5, 3))
sketch2.addConstraint(Sketcher.Constraint("Horizontal", 6, 3, 7, 3))
sketch2.addConstraint(Sketcher.Constraint("Horizontal", 20, 3, 22, 3))
sketch2.addConstraint(Sketcher.Constraint("Horizontal", 21, 3, 23, 3))
sketch2.addConstraint(Sketcher.Constraint("Vertical", 4, 3, 6, 3))
sketch2.addConstraint(Sketcher.Constraint("Vertical", 5, 3, 7, 3))
sketch2.addConstraint(Sketcher.Constraint("Vertical", 20, 3, 21, 3))
sketch2.addConstraint(Sketcher.Constraint("Vertical", 22, 3, 23, 3))
sketch2.addConstraint(Sketcher.Constraint("Diameter", 0, 2.001))
sketch2.addConstraint(Sketcher.Constraint("DistanceY", 9, 3, 8, 3, 3.2))
sketch2.addConstraint(Sketcher.Constraint("DistanceY", 10, 3, 11, 3, 3.2))
sketch2.addConstraint(Sketcher.Constraint("DistanceY", 12, 3, 13, 3, 3.2))
sketch2.addConstraint(Sketcher.Constraint("DistanceY", 15, 3, 14, 3, 3.2))
sketch2.addConstraint(Sketcher.Constraint("DistanceX", 9, 3, 10, 3, 18.998998))
sketch2.addConstraint(Sketcher.Constraint("DistanceX", 8, 3, 11, 3, 18.998998))
sketch2.addConstraint(Sketcher.Constraint("DistanceX", 13, 3, 14, 3, 18.998999))
sketch2.addConstraint(Sketcher.Constraint("DistanceX", 12, 3, 15, 3, 18.998999))
sketch2.addConstraint(Sketcher.Constraint("DistanceX", -1, 1, 3, 3, 77.697899))
sketch2.addConstraint(Sketcher.Constraint("DistanceY", -1, 1, 31, 3, 135.908399))
sketch2.addConstraint(Sketcher.Constraint("DistanceY", 11, 3, 16, 3, 37.300899))
sketch2.addConstraint(Sketcher.Constraint("DistanceY", 13, 3, 21, 3, 47.925301))
sketch2.addConstraint(Sketcher.Constraint("DistanceY", 25, 3, 29, 3, 2.607498))
sketch2.addConstraint(Sketcher.Constraint("DistanceX", -1, 1, 0, 3, 61.241242))
sketch2.addConstraint(Sketcher.Constraint("DistanceY", -1, 1, 0, 3, 98.92892))
sketch2.addConstraint(Sketcher.Constraint("DistanceX", -1, 1, 1, 3, 59.642129))
sketch2.addConstraint(Sketcher.Constraint("DistanceY", -1, 1, 3, 3, 108.423151))
sketch2.addConstraint(Sketcher.Constraint("DistanceX", -1, 1, 4, 3, 87.70746))
sketch2.addConstraint(Sketcher.Constraint("DistanceY", -1, 1, 4, 3, 99.29254))
sketch2.addConstraint(Sketcher.Constraint("DistanceX", -1, 1, 5, 3, 98.29254))
sketch2.addConstraint(Sketcher.Constraint("DistanceY", -1, 1, 6, 3, 72.70746))
sketch2.addConstraint(Sketcher.Constraint("DistanceY", -1, 1, 8, 3, 68.480811))
sketch2.addConstraint(Sketcher.Constraint("DistanceX", -1, 1, 11, 3, 127.734991))
sketch2.addConstraint(Sketcher.Constraint("DistanceX", -1, 1, 13, 3, 182.735989))
sketch2.addConstraint(Sketcher.Constraint("DistanceY", -1, 1, 14, 3, 68.450981))
sketch2.addConstraint(Sketcher.Constraint("DistanceX", -1, 1, 15, 3, 201.733962))
sketch2.addConstraint(Sketcher.Constraint("DistanceX", -1, 1, 16, 3, 232.082479))
sketch2.addConstraint(Sketcher.Constraint("DistanceX", -1, 1, 18, 3, 250.133939))
sketch2.addConstraint(Sketcher.Constraint("DistanceY", -1, 1, 18, 3, 99.04161))
sketch2.addConstraint(Sketcher.Constraint("DistanceX", -1, 1, 19, 3, 248.533051))
sketch2.addConstraint(Sketcher.Constraint("DistanceY", -1, 1, 19, 3, 96.270842))
sketch2.addConstraint(Sketcher.Constraint("DistanceY", -1, 1, 27, 3, 136.062152))
sketch2.addConstraint(Sketcher.Constraint("DistanceX", -1, 1, 28, 3, 141.795622))
sketch2.addConstraint(Sketcher.Constraint("DistanceY", -1, 1, 28, 3, 145.402631))
sketch2.addConstraint(Sketcher.Constraint("DistanceX", -1, 1, 29, 3, 140.196509))
sketch2.addConstraint(Sketcher.Constraint("DistanceY", 1, 3, 2, 3, 9.494232))
sketch2.addConstraint(Sketcher.Constraint("DistanceY", 1, 3, 3, 3, 6.722438))
sketch2.addConstraint(Sketcher.Constraint("DistanceX", 8, 3, 10, 3, 18.997972))
sketch2.addConstraint(Sketcher.Constraint("DistanceY", 13, 3, 16, 3, 37.318541))
sketch2.addConstraint(Sketcher.Constraint("DistanceX", 16, 3, 17, 3, 1.600888))
sketch2.addConstraint(Sketcher.Constraint("DistanceY", 16, 3, 17, 3, 2.770768))
sketch2.addConstraint(Sketcher.Constraint("DistanceY", 13, 3, 20, 3, 37.340222))
sketch2.addConstraint(Sketcher.Constraint("DistanceX", 20, 3, 14, 3, 40.906761))
sketch2.addConstraint(Sketcher.Constraint("DistanceX", 22, 3, 20, 3, 11.585079))
sketch2.addConstraint(Sketcher.Constraint("DistanceY", 21, 3, 24, 3, 26.413782))
sketch2.addConstraint(Sketcher.Constraint("DistanceX", 24, 3, 25, 3, 1.600888))
sketch2.addConstraint(Sketcher.Constraint("DistanceY", 24, 3, 25, 3, 2.770768))
sketch2.addConstraint(Sketcher.Constraint("DistanceX", 24, 3, 26, 3, 16.45057))
sketch2.addConstraint(Sketcher.Constraint("DistanceY", 26, 3, 25, 3, 12.275542))
sketch2.addConstraint(Sketcher.Constraint("DistanceX", 26, 3, 27, 3, 1.600888))
sketch2.addConstraint(Sketcher.Constraint("DistanceY", 26, 3, 27, 3, 2.770768))
sketch2.addConstraint(Sketcher.Constraint("DistanceX", 28, 3, 25, 3, 27.81373))
sketch2.addConstraint(Sketcher.Constraint("DistanceY", 30, 3, 29, 3, 9.494231))
sketch2.addConstraint(Sketcher.Constraint("DistanceX", 30, 3, 28, 3, 18.05577))
sketch2.addConstraint(Sketcher.Constraint("DistanceX", -1, 1, 2, 3, 76.098787))
sketch2.addConstraint(Sketcher.Constraint("DistanceX", -1, 1, 31, 3, 125.338965))
pocket1 = body.newObject("PartDesign::Pocket", "Pocket")
pocket1.Profile = sketch2
pocket1.Type = "ThroughAll"

doc.recompute()
